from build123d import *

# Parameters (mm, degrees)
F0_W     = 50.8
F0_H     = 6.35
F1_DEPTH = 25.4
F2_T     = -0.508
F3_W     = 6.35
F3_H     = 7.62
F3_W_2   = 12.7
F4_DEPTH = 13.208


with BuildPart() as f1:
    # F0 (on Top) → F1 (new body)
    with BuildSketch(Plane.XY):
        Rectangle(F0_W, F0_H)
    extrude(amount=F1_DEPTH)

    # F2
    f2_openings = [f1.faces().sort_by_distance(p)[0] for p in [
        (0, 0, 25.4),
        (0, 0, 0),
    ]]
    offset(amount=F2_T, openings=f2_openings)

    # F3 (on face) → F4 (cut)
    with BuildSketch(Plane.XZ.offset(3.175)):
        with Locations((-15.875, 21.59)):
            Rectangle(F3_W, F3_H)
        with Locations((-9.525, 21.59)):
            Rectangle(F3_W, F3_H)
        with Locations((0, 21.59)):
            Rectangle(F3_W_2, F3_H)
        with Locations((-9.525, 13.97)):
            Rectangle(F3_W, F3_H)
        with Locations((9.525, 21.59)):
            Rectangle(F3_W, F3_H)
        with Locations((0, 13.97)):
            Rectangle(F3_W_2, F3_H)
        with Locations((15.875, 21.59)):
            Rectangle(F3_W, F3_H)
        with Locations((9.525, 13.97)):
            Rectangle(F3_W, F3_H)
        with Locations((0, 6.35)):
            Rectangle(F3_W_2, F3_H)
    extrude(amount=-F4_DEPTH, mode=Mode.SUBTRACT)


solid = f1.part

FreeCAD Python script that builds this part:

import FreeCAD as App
import Part
import Sketcher
from FreeCAD import Vector
Q = App.Units.Quantity


def faces_at(feature, points):
    """Names of the faces that lie closest to the given points."""
    faces = feature.Shape.Faces
    near = lambda p: min(range(len(faces)), key=lambda i: faces[i].distToShape(Part.Vertex(*p))[0])
    return sorted({f"Face{near(p) + 1}" for p in points})

doc = App.newDocument("Part")
params = doc.addObject("Spreadsheet::Sheet", "Params")
for row, (alias, value) in enumerate([
    ("sketch1_width", "2 in"),
    ("sketch1_height", "0.25 in"),
    ("pad1_length", "1 in"),
    ("thickness_wall", "0.02 in"),
    ("sketch2_width", "0.5 in"),
    ("sketch2_width2", "1.5 in"),
    ("sketch2_height", "0.3 in"),
    ("pocket1_length", "0.52 in"),
], start=1):
    params.set(f"A{row}", alias)
    params.set(f"B{row}", "=" + value)
    params.setAlias(f"B{row}", alias)

body = doc.addObject("PartDesign::Body", "Body")

# Sketch on XY plane
sketch1 = doc.addObject("Sketcher::SketchObject", "Sketch")
body.addObject(sketch1)
sketch1.AttachmentSupport = (doc.XY_Plane, [""])
sketch1.MapMode = "FlatFace"
sketch1.addGeometry(Part.LineSegment(Vector(-25, 3, 0), Vector(-25, -3, 0)), False)
sketch1.addGeometry(Part.LineSegment(Vector(-25, -3, 0), Vector(25, -3, 0)), False)
sketch1.addGeometry(Part.LineSegment(Vector(25, -3, 0), Vector(25, 3, 0)), False)
sketch1.addGeometry(Part.LineSegment(Vector(25, 3, 0), Vector(-25, 3, 0)), False)
sketch1.addConstraint(Sketcher.Constraint("Coincident", 0, 2, 1, 1))
sketch1.addConstraint(Sketcher.Constraint("Coincident", 1, 2, 2, 1))
sketch1.addConstraint(Sketcher.Constraint("Coincident", 2, 2, 3, 1))
sketch1.addConstraint(Sketcher.Constraint("Coincident", 3, 2, 0, 1))
sketch1.addConstraint(Sketcher.Constraint("Vertical", 0))
sketch1.addConstraint(Sketcher.Constraint("Horizontal", 1))
sketch1.addConstraint(Sketcher.Constraint("Vertical", 2))
sketch1.addConstraint(Sketcher.Constraint("Horizontal", 3))
sketch1.addConstraint(Sketcher.Constraint("Symmetric", 0, 2, 2, 2, -1, 1))
sketch1.addConstraint(Sketcher.Constraint("DistanceX", 1, 1, 1, 2, Q("2 in")))
sketch1.addConstraint(Sketcher.Constraint("DistanceY", 0, 2, 0, 1, Q("0.25 in")))
sketch1.setExpression("Constraints[9]", "Params.sketch1_width")
sketch1.setExpression("Constraints[10]", "Params.sketch1_height")
pad1 = doc.addObject("PartDesign::Pad", "Pad")
body.addObject(pad1)
pad1.Profile = sketch1
pad1.setExpression("Length", "Params.pad1_length")
doc.recompute()

thickness = doc.addObject("PartDesign::Thickness", "Thickness")
body.addObject(thickness)
thickness.Base = (pad1, faces_at(pad1, [(0, 0, 25.4), (0, 0, 0)]))
thickness.setExpression("Value", "Params.thickness_wall")
thickness.Reversed = True
thickness.Join = "Arc"

# Sketch on XZ plane
sketch2 = doc.addObject("Sketcher::SketchObject", "Sketch001")
body.addObject(sketch2)
sketch2.AttachmentSupport = (doc.XZ_Plane, [""])
sketch2.MapMode = "FlatFace"
sketch2.AttachmentOffset = App.Placement(Vector(0, 0, 0.125 * 25.4), App.Rotation())
sketch2.addGeometry(Part.LineSegment(Vector(-19, 25, 0), Vector(-19, 18, 0)), False)
sketch2.addGeometry(Part.LineSegment(Vector(-19, 18, 0), Vector(-13, 18, 0)), False)
sketch2.addGeometry(Part.LineSegment(Vector(-13, 18, 0), Vector(-13, 10, 0)), False)
sketch2.addGeometry(Part.LineSegment(Vector(-13, 10, 0), Vector(-6, 10, 0)), False)
sketch2.addGeometry(Part.LineSegment(Vector(-6, 10, 0), Vector(-6, 3, 0)), False)
sketch2.addGeometry(Part.LineSegment(Vector(-6, 3, 0), Vector(6, 3, 0)), False)
sketch2.addGeometry(Part.LineSegment(Vector(6, 3, 0), Vector(6, 10, 0)), False)
sketch2.addGeometry(Part.LineSegment(Vector(6, 10, 0), Vector(13, 10, 0)), False)
sketch2.addGeometry(Part.LineSegment(Vector(13, 10, 0), Vector(13, 18, 0)), False)
sketch2.addGeometry(Part.LineSegment(Vector(13, 18, 0), Vector(19, 18, 0)), False)
sketch2.addGeometry(Part.LineSegment(Vector(19, 18, 0), Vector(19, 25, 0)), False)
sketch2.addGeometry(Part.LineSegment(Vector(19, 25, 0), Vector(-19, 25, 0)), False)
sketch2.addConstraint(Sketcher.Constraint("Coincident", 0, 2, 1, 1))
sketch2.addConstraint(Sketcher.Constraint("Coincident", 1, 2, 2, 1))
sketch2.addConstraint(Sketcher.Constraint("Coincident", 2, 2, 3, 1))
sketch2.addConstraint(Sketcher.Constraint("Coincident", 3, 2, 4, 1))
sketch2.addConstraint(Sketcher.Constraint("Coincident", 4, 2, 5, 1))
sketch2.addConstraint(Sketcher.Constraint("Coincident", 5, 2, 6, 1))
sketch2.addConstraint(Sketcher.Constraint("Coincident", 6, 2, 7, 1))
sketch2.addConstraint(Sketcher.Constraint("Coincident", 7, 2, 8, 1))
sketch2.addConstraint(Sketcher.Constraint("Coincident", 8, 2, 9, 1))
sketch2.addConstraint(Sketcher.Constraint("Coincident", 9, 2, 10, 1))
sketch2.addConstraint(Sketcher.Constraint("Coincident", 10, 2, 11, 1))
sketch2.addConstraint(Sketcher.Constraint("Coincident", 11, 2, 0, 1))
sketch2.addConstraint(Sketcher.Constraint("Vertical", 0))
sketch2.addConstraint(Sketcher.Constraint("Horizontal", 1))
sketch2.addConstraint(Sketcher.Constraint("Vertical", 2))
sketch2.addConstraint(Sketcher.Constraint("Horizontal", 3))
sketch2.addConstraint(Sketcher.Constraint("Vertical", 4))
sketch2.addConstraint(Sketcher.Constraint("Horizontal", 5))
sketch2.addConstraint(Sketcher.Constraint("Vertical", 6))
sketch2.addConstraint(Sketcher.Constraint("Horizontal", 7))
sketch2.addConstraint(Sketcher.Constraint("Vertical", 8))
sketch2.addConstraint(Sketcher.Constraint("Horizontal", 9))
sketch2.addConstraint(Sketcher.Constraint("Vertical", 10))
sketch2.addConstraint(Sketcher.Constraint("Horizontal", 11))
sketch2.addConstraint(Sketcher.Constraint("Symmetric", 3, 2, 6, 2, -2))
sketch2.addConstraint(Sketcher.Constraint("Symmetric", 1, 2, 8, 2, -2))
sketch2.addConstraint(Sketcher.Constraint("Equal", 1, 3))
sketch2.addConstraint(Sketcher.Constraint("Equal", 7, 9))
sketch2.addConstraint(Sketcher.Constraint("Equal", 0, 2))
sketch2.addConstraint(Sketcher.Constraint("Equal", 2, 4))
sketch2.addConstraint(Sketcher.Constraint("DistanceX", 5, 1, 5, 2, Q("0.5 in")))
sketch2.addConstraint(Sketcher.Constraint("DistanceX", 11, 2, 11, 1, Q("1.5 in")))
sketch2.addConstraint(Sketcher.Constraint("DistanceY", 0, 2, 0, 1, Q("0.3 in")))
sketch2.addConstraint(Sketcher.Constraint("DistanceY", -1, 1, 10, 2, Q("1 in")))
sketch2.setExpression("Constraints[30]", "Params.sketch2_width")
sketch2.setExpression("Constraints[31]", "Params.sketch2_width2")
sketch2.setExpression("Constraints[32]", "Params.sketch2_height")
pocket1 = doc.addObject("PartDesign::Pocket", "Pocket")
body.addObject(pocket1)
pocket1.Profile = sketch2
pocket1.setExpression("Length", "Params.pocket1_length")

doc.recompute()
